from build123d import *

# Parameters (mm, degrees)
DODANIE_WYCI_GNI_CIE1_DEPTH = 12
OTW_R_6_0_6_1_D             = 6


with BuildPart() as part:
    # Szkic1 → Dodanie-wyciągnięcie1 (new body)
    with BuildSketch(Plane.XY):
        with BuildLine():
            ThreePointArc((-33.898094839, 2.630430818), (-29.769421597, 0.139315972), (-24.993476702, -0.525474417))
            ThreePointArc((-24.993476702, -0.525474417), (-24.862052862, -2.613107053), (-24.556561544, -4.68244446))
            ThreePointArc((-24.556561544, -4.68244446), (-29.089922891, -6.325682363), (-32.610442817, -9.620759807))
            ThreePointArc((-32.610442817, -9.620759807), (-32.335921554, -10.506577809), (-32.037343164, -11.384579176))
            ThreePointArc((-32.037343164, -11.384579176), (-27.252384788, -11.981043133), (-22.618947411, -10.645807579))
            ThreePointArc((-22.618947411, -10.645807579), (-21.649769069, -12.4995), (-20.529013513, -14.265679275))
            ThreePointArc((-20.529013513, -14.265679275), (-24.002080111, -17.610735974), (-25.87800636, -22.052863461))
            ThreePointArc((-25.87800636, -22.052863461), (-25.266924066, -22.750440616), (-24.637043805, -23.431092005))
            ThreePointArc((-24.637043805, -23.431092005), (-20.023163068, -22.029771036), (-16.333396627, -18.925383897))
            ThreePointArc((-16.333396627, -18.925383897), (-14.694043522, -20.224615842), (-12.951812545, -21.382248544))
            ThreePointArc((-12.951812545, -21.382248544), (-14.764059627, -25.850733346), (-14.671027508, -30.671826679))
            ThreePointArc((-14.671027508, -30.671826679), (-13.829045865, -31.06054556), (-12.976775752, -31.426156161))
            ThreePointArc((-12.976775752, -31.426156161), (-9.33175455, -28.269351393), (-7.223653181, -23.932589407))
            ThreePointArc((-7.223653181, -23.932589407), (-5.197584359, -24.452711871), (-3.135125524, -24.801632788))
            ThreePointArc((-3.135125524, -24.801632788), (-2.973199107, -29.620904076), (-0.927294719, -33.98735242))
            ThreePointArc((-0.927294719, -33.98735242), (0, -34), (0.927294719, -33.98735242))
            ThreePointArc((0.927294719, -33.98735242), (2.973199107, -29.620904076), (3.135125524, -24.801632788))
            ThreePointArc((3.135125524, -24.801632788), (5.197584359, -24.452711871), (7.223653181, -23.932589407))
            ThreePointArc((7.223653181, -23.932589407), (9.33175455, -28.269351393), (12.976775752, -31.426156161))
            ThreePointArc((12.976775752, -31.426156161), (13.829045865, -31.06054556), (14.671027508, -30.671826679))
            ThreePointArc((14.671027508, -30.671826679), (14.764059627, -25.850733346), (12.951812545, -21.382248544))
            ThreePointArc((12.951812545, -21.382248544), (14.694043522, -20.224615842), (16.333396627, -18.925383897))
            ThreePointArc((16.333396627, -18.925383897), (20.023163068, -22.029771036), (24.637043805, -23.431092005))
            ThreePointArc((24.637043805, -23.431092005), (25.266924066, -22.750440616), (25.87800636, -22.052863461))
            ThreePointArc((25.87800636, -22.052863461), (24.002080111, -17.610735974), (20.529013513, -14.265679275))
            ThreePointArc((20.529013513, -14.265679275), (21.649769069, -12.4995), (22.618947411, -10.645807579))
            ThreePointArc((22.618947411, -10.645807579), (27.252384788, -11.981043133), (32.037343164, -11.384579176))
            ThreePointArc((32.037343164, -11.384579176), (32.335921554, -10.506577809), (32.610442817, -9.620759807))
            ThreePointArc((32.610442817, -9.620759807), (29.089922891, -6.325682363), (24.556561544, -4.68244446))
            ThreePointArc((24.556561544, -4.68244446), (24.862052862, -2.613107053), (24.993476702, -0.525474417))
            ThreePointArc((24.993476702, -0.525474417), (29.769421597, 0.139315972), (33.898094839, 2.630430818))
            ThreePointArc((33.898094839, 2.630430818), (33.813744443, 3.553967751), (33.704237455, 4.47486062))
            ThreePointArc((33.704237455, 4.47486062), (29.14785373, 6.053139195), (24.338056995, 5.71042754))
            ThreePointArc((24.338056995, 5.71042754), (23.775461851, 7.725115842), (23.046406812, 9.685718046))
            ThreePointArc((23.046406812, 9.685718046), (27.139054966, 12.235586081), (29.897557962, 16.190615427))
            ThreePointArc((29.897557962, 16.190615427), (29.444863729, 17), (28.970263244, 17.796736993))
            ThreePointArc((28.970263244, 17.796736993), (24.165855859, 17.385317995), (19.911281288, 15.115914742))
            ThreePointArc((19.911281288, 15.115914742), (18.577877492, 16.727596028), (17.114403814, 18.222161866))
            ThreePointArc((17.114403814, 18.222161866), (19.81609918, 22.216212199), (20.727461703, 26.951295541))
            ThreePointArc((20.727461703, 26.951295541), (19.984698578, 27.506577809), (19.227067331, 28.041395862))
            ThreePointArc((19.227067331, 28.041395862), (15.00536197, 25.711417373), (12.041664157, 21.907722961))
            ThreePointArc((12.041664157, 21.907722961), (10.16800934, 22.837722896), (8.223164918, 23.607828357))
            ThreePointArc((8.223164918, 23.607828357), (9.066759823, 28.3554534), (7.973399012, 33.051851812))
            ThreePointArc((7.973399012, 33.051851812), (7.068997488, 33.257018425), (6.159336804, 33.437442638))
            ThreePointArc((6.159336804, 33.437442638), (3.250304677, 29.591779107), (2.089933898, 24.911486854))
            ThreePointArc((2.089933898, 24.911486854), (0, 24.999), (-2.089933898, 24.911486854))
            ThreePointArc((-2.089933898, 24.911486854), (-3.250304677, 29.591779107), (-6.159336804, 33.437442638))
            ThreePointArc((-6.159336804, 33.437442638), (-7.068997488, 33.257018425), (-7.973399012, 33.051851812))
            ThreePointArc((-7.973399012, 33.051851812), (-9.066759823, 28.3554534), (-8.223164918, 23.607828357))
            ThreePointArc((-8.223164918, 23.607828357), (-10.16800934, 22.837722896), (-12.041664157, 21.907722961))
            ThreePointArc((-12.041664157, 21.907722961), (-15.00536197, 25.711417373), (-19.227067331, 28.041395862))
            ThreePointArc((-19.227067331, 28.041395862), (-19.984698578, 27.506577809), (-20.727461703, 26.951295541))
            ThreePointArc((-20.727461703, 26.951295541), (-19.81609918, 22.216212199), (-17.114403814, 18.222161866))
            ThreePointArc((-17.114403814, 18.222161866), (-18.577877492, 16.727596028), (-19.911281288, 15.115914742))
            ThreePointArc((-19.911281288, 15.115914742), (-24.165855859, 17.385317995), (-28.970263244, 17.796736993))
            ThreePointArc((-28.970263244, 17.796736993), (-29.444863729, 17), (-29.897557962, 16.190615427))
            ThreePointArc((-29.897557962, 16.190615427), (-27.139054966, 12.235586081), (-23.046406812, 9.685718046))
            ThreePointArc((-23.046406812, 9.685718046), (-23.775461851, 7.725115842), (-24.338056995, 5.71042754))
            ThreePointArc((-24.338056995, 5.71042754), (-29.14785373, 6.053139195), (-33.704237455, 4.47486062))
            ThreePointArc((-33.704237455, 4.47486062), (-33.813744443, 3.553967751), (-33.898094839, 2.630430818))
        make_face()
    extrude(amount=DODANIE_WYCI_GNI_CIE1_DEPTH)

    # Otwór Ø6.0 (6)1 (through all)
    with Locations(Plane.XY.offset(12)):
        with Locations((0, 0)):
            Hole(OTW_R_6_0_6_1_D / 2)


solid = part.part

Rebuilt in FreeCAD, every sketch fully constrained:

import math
import FreeCAD as App
import Part
import Sketcher
from FreeCAD import Vector
Q = App.Units.Quantity

doc = App.newDocument("Part")
body = doc.addObject("PartDesign::Body", "Body")

sketch1 = body.newObject("Sketcher::SketchObject", "Sketch")
sketch1.AttachmentSupport = (doc.getObject("XY_Plane"), [""])
sketch1.MapMode = "FlatFace"
sketch1.addGeometry(Part.ArcOfCircle(Part.Circle(Vector(-25.8, 11.4, 0), Vector(0, 0, 1), 12), math.radians(-133), math.radians(-86)), False)
sketch1.addGeometry(Part.ArcOfCircle(Part.Circle(Vector(0, 0, 0), Vector(0, 0, 1), 25), math.radians(-178.8), math.radians(-169.2)), False)
sketch1.addGeometry(Part.ArcOfCircle(Part.Circle(Vector(-22.8, -16.6, 0), Vector(0, 0, 1), 12), math.radians(98), math.radians(145)), False)
sketch1.addGeometry(Part.ArcOfCircle(Part.Circle(Vector(0, 0, 0), Vector(0, 0, 1), 34), math.radians(-163.56), math.radians(-160.44)), False)
sketch1.addGeometry(Part.ArcOfCircle(Part.Circle(Vector(-28.2, 0, 0), Vector(0, 0, 1), 12), math.radians(-109), math.radians(-62)), False)
sketch1.addGeometry(Part.ArcOfCircle(Part.Circle(Vector(0, 0, 0), Vector(0, 0, 1), 25), math.radians(-154.8), math.radians(-145.2)), False)
sketch1.addGeometry(Part.ArcOfCircle(Part.Circle(Vector(-14.1, -24.4, 0), Vector(0, 0, 1), 12), math.radians(122), math.radians(169)), False)
sketch1.addGeometry(Part.ArcOfCircle(Part.Circle(Vector(0, 0, 0), Vector(0, 0, 1), 34), math.radians(-139.56), math.radians(-136.44)), False)
sketch1.addGeometry(Part.ArcOfCircle(Part.Circle(Vector(-25.7, -11.5, 0), Vector(0, 0, 1), 12), math.radians(-85), math.radians(-38)), False)
sketch1.addGeometry(Part.ArcOfCircle(Part.Circle(Vector(0, 0, 0), Vector(0, 0, 1), 25), math.radians(-130.8), math.radians(-121.2)), False)
sketch1.addGeometry(Part.ArcOfCircle(Part.Circle(Vector(-3, -28, 0), Vector(0, 0, 1), 12), math.radians(146), math.radians(193)), False)
sketch1.addGeometry(Part.ArcOfCircle(Part.Circle(Vector(0, 0, 0), Vector(0, 0, 1), 34), math.radians(-115.56), math.radians(-112.44)), False)
sketch1.addGeometry(Part.ArcOfCircle(Part.Circle(Vector(-18.9, -21, 0), Vector(0, 0, 1), 12), math.radians(-61), math.radians(-14)), False)
sketch1.addGeometry(Part.ArcOfCircle(Part.Circle(Vector(0, 0, 0), Vector(0, 0, 1), 25), math.radians(-106.8), math.radians(-97.2)), False)
sketch1.addGeometry(Part.ArcOfCircle(Part.Circle(Vector(8.7, -26.8, 0), Vector(0, 0, 1), 12), math.radians(170), math.radians(217)), False)
sketch1.addGeometry(Part.ArcOfCircle(Part.Circle(Vector(0, 0, 0), Vector(0, 0, 1), 34), math.radians(-91.56), math.radians(-88.44)), False)
sketch1.addGeometry(Part.ArcOfCircle(Part.Circle(Vector(-8.7, -26.8, 0), Vector(0, 0, 1), 12), math.radians(-37), math.radians(10)), False)
sketch1.addGeometry(Part.ArcOfCircle(Part.Circle(Vector(0, 0, 0), Vector(0, 0, 1), 25), math.radians(-82.8), math.radians(-73.2)), False)
sketch1.addGeometry(Part.ArcOfCircle(Part.Circle(Vector(18.9, -21, 0), Vector(0, 0, 1), 12), math.radians(-166), math.radians(-119)), False)
sketch1.addGeometry(Part.ArcOfCircle(Part.Circle(Vector(0, 0, 0), Vector(0, 0, 1), 34), math.radians(-67.56), math.radians(-64.44)), False)
sketch1.addGeometry(Part.ArcOfCircle(Part.Circle(Vector(3, -28, 0), Vector(0, 0, 1), 12), math.radians(-13), math.radians(34)), False)
sketch1.addGeometry(Part.ArcOfCircle(Part.Circle(Vector(0, 0, 0), Vector(0, 0, 1), 25), math.radians(-58.8), math.radians(-49.2)), False)
sketch1.addGeometry(Part.ArcOfCircle(Part.Circle(Vector(25.7, -11.5, 0), Vector(0, 0, 1), 12), math.radians(-142), math.radians(-95)), False)
sketch1.addGeometry(Part.ArcOfCircle(Part.Circle(Vector(0, 0, 0), Vector(0, 0, 1), 34), math.radians(-43.56), math.radians(-40.44)), False)
sketch1.addGeometry(Part.ArcOfCircle(Part.Circle(Vector(14.1, -24.4, 0), Vector(0, 0, 1), 12), math.radians(11), math.radians(58)), False)
sketch1.addGeometry(Part.ArcOfCircle(Part.Circle(Vector(0, 0, 0), Vector(0, 0, 1), 25), math.radians(-34.8), math.radians(-25.2)), False)
sketch1.addGeometry(Part.ArcOfCircle(Part.Circle(Vector(28.2, 0, 0), Vector(0, 0, 1), 12), math.radians(-118), math.radians(-71)), False)
sketch1.addGeometry(Part.ArcOfCircle(Part.Circle(Vector(0, 0, 0), Vector(0, 0, 1), 34), math.radians(-19.56), math.radians(-16.44)), False)
sketch1.addGeometry(Part.ArcOfCircle(Part.Circle(Vector(22.8, -16.6, 0), Vector(0, 0, 1), 12), math.radians(35), math.radians(82)), False)
sketch1.addGeometry(Part.ArcOfCircle(Part.Circle(Vector(0, 0, 0), Vector(0, 0, 1), 25), math.radians(-10.8), math.radians(-1.2)), False)
sketch1.addGeometry(Part.ArcOfCircle(Part.Circle(Vector(25.8, 11.4, 0), Vector(0, 0, 1), 12), math.radians(-94), math.radians(-47)), False)
sketch1.addGeometry(Part.ArcOfCircle(Part.Circle(Vector(0, 0, 0), Vector(0, 0, 1), 34), math.radians(4.44), math.radians(7.56)), False)
sketch1.addGeometry(Part.ArcOfCircle(Part.Circle(Vector(27.6, -5.8, 0), Vector(0, 0, 1), 12), math.radians(59), math.radians(106)), False)
sketch1.addGeometry(Part.ArcOfCircle(Part.Circle(Vector(0, 0, 0), Vector(0, 0, 1), 25), math.radians(13.2), math.radians(22.8)), False)
sketch1.addGeometry(Part.ArcOfCircle(Part.Circle(Vector(18.9, 20.9, 0), Vector(0, 0, 1), 12), math.radians(-70), math.radians(-23)), False)
sketch1.addGeometry(Part.ArcOfCircle(Part.Circle(Vector(0, 0, 0), Vector(0, 0, 1), 34), math.radians(28.44), math.radians(31.56)), False)
sketch1.addGeometry(Part.ArcOfCircle(Part.Circle(Vector(27.6, 5.9, 0), Vector(0, 0, 1), 12), math.radians(83), math.radians(130)), False)
sketch1.addGeometry(Part.ArcOfCircle(Part.Circle(Vector(0, 0, 0), Vector(0, 0, 1), 25), math.radians(37.2), math.radians(46.8)), False)
sketch1.addGeometry(Part.ArcOfCircle(Part.Circle(Vector(8.7, 26.8, 0), Vector(0, 0, 1), 12), math.radians(-46), math.radians(1)), False)
sketch1.addGeometry(Part.ArcOfCircle(Part.Circle(Vector(0, 0, 0), Vector(0, 0, 1), 34), math.radians(52.44), math.radians(55.56)), False)
sketch1.addGeometry(Part.ArcOfCircle(Part.Circle(Vector(22.8, 16.6, 0), Vector(0, 0, 1), 12), math.radians(107), math.radians(154)), False)
sketch1.addGeometry(Part.ArcOfCircle(Part.Circle(Vector(0, 0, 0), Vector(0, 0, 1), 25), math.radians(61.2), math.radians(70.8)), False)
sketch1.addGeometry(Part.ArcOfCircle(Part.Circle(Vector(-2.9, 28, 0), Vector(0, 0, 1), 12), math.radians(-22), math.radians(25)), False)
sketch1.addGeometry(Part.ArcOfCircle(Part.Circle(Vector(0, 0, 0), Vector(0, 0, 1), 34), math.radians(76.44), math.radians(79.56)), False)
sketch1.addGeometry(Part.ArcOfCircle(Part.Circle(Vector(14.1, 24.4, 0), Vector(0, 0, 1), 12), math.radians(131), math.radians(178)), False)
sketch1.addGeometry(Part.ArcOfCircle(Part.Circle(Vector(0, 0, 0), Vector(0, 0, 1), 25), math.radians(85.2), math.radians(94.8)), False)
sketch1.addGeometry(Part.ArcOfCircle(Part.Circle(Vector(-14.1, 24.4, 0), Vector(0, 0, 1), 12), math.radians(2), math.radians(49)), False)
sketch1.addGeometry(Part.ArcOfCircle(Part.Circle(Vector(0, 0, 0), Vector(0, 0, 1), 34), math.radians(100.44), math.radians(103.56)), False)
sketch1.addGeometry(Part.ArcOfCircle(Part.Circle(Vector(2.9, 28, 0), Vector(0, 0, 1), 12), math.radians(155), math.radians(202)), False)
sketch1.addGeometry(Part.ArcOfCircle(Part.Circle(Vector(0, 0, 0), Vector(0, 0, 1), 25), math.radians(109.2), math.radians(118.8)), False)
sketch1.addGeometry(Part.ArcOfCircle(Part.Circle(Vector(-22.8, 16.6, 0), Vector(0, 0, 1), 12), math.radians(26), math.radians(73)), False)
sketch1.addGeometry(Part.ArcOfCircle(Part.Circle(Vector(0, 0, 0), Vector(0, 0, 1), 34), math.radians(124.44), math.radians(127.56)), False)
sketch1.addGeometry(Part.ArcOfCircle(Part.Circle(Vector(-8.7, 26.8, 0), Vector(0, 0, 1), 12), math.radians(179), math.radians(226)), False)
sketch1.addGeometry(Part.ArcOfCircle(Part.Circle(Vector(0, 0, 0), Vector(0, 0, 1), 25), math.radians(133.2), math.radians(142.8)), False)
sketch1.addGeometry(Part.ArcOfCircle(Part.Circle(Vector(-27.6, 5.9, 0), Vector(0, 0, 1), 12), math.radians(50), math.radians(97)), False)
sketch1.addGeometry(Part.ArcOfCircle(Part.Circle(Vector(0, 0, 0), Vector(0, 0, 1), 34), math.radians(148.44), math.radians(151.56)), False)
sketch1.addGeometry(Part.ArcOfCircle(Part.Circle(Vector(-18.9, 20.9, 0), Vector(0, 0, 1), 12), math.radians(-157), math.radians(-110)), False)
sketch1.addGeometry(Part.ArcOfCircle(Part.Circle(Vector(0, 0, 0), Vector(0, 0, 1), 25), math.radians(157.2), math.radians(166.8)), False)
sketch1.addGeometry(Part.ArcOfCircle(Part.Circle(Vector(-27.6, -5.8, 0), Vector(0, 0, 1), 12), math.radians(74), math.radians(121)), False)
sketch1.addGeometry(Part.ArcOfCircle(Part.Circle(Vector(0, 0, 0), Vector(0, 0, 1), 34), math.radians(172.44), math.radians(175.56)), False)
sketch1.addConstraint(Sketcher.Constraint("Coincident", 0, 2, 1, 1))
sketch1.addConstraint(Sketcher.Constraint("Coincident", 1, 2, 2, 1))
sketch1.addConstraint(Sketcher.Constraint("Coincident", 2, 2, 3, 1))
sketch1.addConstraint(Sketcher.Constraint("Coincident", 3, 2, 4, 1))
sketch1.addConstraint(Sketcher.Constraint("Coincident", 4, 2, 5, 1))
sketch1.addConstraint(Sketcher.Constraint("Coincident", 5, 2, 6, 1))
sketch1.addConstraint(Sketcher.Constraint("Coincident", 6, 2, 7, 1))
sketch1.addConstraint(Sketcher.Constraint("Coincident", 7, 2, 8, 1))
sketch1.addConstraint(Sketcher.Constraint("Coincident", 8, 2, 9, 1))
sketch1.addConstraint(Sketcher.Constraint("Coincident", 9, 2, 10, 1))
sketch1.addConstraint(Sketcher.Constraint("Coincident", 10, 2, 11, 1))
sketch1.addConstraint(Sketcher.Constraint("Coincident", 11, 2, 12, 1))
sketch1.addConstraint(Sketcher.Constraint("Coincident", 12, 2, 13, 1))
sketch1.addConstraint(Sketcher.Constraint("Coincident", 13, 2, 14, 1))
sketch1.addConstraint(Sketcher.Constraint("Coincident", 14, 2, 15, 1))
sketch1.addConstraint(Sketcher.Constraint("Coincident", 15, 2, 16, 1))
sketch1.addConstraint(Sketcher.Constraint("Coincident", 16, 2, 17, 1))
sketch1.addConstraint(Sketcher.Constraint("Coincident", 17, 2, 18, 1))
sketch1.addConstraint(Sketcher.Constraint("Coincident", 18, 2, 19, 1))
sketch1.addConstraint(Sketcher.Constraint("Coincident", 19, 2, 20, 1))
sketch1.addConstraint(Sketcher.Constraint("Coincident", 20, 2, 21, 1))
sketch1.addConstraint(Sketcher.Constraint("Coincident", 21, 2, 22, 1))
sketch1.addConstraint(Sketcher.Constraint("Coincident", 22, 2, 23, 1))
sketch1.addConstraint(Sketcher.Constraint("Coincident", 23, 2, 24, 1))
sketch1.addConstraint(Sketcher.Constraint("Coincident", 24, 2, 25, 1))
sketch1.addConstraint(Sketcher.Constraint("Coincident", 25, 2, 26, 1))
sketch1.addConstraint(Sketcher.Constraint("Coincident", 26, 2, 27, 1))
sketch1.addConstraint(Sketcher.Constraint("Coincident", 27, 2, 28, 1))
sketch1.addConstraint(Sketcher.Constraint("Coincident", 28, 2, 29, 1))
sketch1.addConstraint(Sketcher.Constraint("Coincident", 29, 2, 30, 1))
sketch1.addConstraint(Sketcher.Constraint("Coincident", 30, 2, 31, 1))
sketch1.addConstraint(Sketcher.Constraint("Coincident", 31, 2, 32, 1))
sketch1.addConstraint(Sketcher.Constraint("Coincident", 32, 2, 33, 1))
sketch1.addConstraint(Sketcher.Constraint("Coincident", 33, 2, 34, 1))
sketch1.addConstraint(Sketcher.Constraint("Coincident", 34, 2, 35, 1))
sketch1.addConstraint(Sketcher.Constraint("Coincident", 35, 2, 36, 1))
sketch1.addConstraint(Sketcher.Constraint("Coincident", 36, 2, 37, 1))
sketch1.addConstraint(Sketcher.Constraint("Coincident", 37, 2, 38, 1))
sketch1.addConstraint(Sketcher.Constraint("Coincident", 38, 2, 39, 1))
sketch1.addConstraint(Sketcher.Constraint("Coincident", 39, 2, 40, 1))
sketch1.addConstraint(Sketcher.Constraint("Coincident", 40, 2, 41, 1))
sketch1.addConstraint(Sketcher.Constraint("Coincident", 41, 2, 42, 1))
sketch1.addConstraint(Sketcher.Constraint("Coincident", 42, 2, 43, 1))
sketch1.addConstraint(Sketcher.Constraint("Coincident", 43, 2, 44, 1))
sketch1.addConstraint(Sketcher.Constraint("Coincident", 44, 2, 45, 1))
sketch1.addConstraint(Sketcher.Constraint("Coincident", 45, 2, 46, 1))
sketch1.addConstraint(Sketcher.Constraint("Coincident", 46, 2, 47, 1))
sketch1.addConstraint(Sketcher.Constraint("Coincident", 47, 2, 48, 1))
sketch1.addConstraint(Sketcher.Constraint("Coincident", 48, 2, 49, 1))
sketch1.addConstraint(Sketcher.Constraint("Coincident", 49, 2, 50, 1))
sketch1.addConstraint(Sketcher.Constraint("Coincident", 50, 2, 51, 1))
sketch1.addConstraint(Sketcher.Constraint("Coincident", 51, 2, 52, 1))
sketch1.addConstraint(Sketcher.Constraint("Coincident", 52, 2, 53, 1))
sketch1.addConstraint(Sketcher.Constraint("Coincident", 53, 2, 54, 1))
sketch1.addConstraint(Sketcher.Constraint("Coincident", 54, 2, 55, 1))
sketch1.addConstraint(Sketcher.Constraint("Coincident", 55, 2, 56, 1))
sketch1.addConstraint(Sketcher.Constraint("Coincident", 56, 2, 57, 1))
sketch1.addConstraint(Sketcher.Constraint("Coincident", 57, 2, 58, 1))
sketch1.addConstraint(Sketcher.Constraint("Coincident", 58, 2, 59, 1))
sketch1.addConstraint(Sketcher.Constraint("Coincident", 59, 2, 0, 1))
sketch1.addConstraint(Sketcher.Constraint("Coincident", 1, 3, -1, 1))
sketch1.addConstraint(Sketcher.Constraint("Coincident", 3, 3, -1, 1))
sketch1.addConstraint(Sketcher.Constraint("Coincident", 5, 3, -1, 1))
sketch1.addConstraint(Sketcher.Constraint("Coincident", 7, 3, -1, 1))
sketch1.addConstraint(Sketcher.Constraint("Coincident", 9, 3, -1, 1))
sketch1.addConstraint(Sketcher.Constraint("Coincident", 11, 3, -1, 1))
sketch1.addConstraint(Sketcher.Constraint("Coincident", 13, 3, -1, 1))
sketch1.addConstraint(Sketcher.Constraint("Coincident", 15, 3, -1, 1))
sketch1.addConstraint(Sketcher.Constraint("Coincident", 17, 3, -1, 1))
sketch1.addConstraint(Sketcher.Constraint("Coincident", 19, 3, -1, 1))
sketch1.addConstraint(Sketcher.Constraint("Coincident", 21, 3, -1, 1))
sketch1.addConstraint(Sketcher.Constraint("Coincident", 23, 3, -1, 1))
sketch1.addConstraint(Sketcher.Constraint("Coincident", 25, 3, -1, 1))
sketch1.addConstraint(Sketcher.Constraint("Coincident", 27, 3, -1, 1))
sketch1.addConstraint(Sketcher.Constraint("Coincident", 29, 3, -1, 1))
sketch1.addConstraint(Sketcher.Constraint("Coincident", 31, 3, -1, 1))
sketch1.addConstraint(Sketcher.Constraint("Coincident", 33, 3, -1, 1))
sketch1.addConstraint(Sketcher.Constraint("Coincident", 35, 3, -1, 1))
sketch1.addConstraint(Sketcher.Constraint("Coincident", 37, 3, -1, 1))
sketch1.addConstraint(Sketcher.Constraint("Coincident", 39, 3, -1, 1))
sketch1.addConstraint(Sketcher.Constraint("Coincident", 41, 3, -1, 1))
sketch1.addConstraint(Sketcher.Constraint("Coincident", 43, 3, -1, 1))
sketch1.addConstraint(Sketcher.Constraint("Coincident", 45, 3, -1, 1))
sketch1.addConstraint(Sketcher.Constraint("Coincident", 47, 3, -1, 1))
sketch1.addConstraint(Sketcher.Constraint("Coincident", 49, 3, -1, 1))
sketch1.addConstraint(Sketcher.Constraint("Coincident", 51, 3, -1, 1))
sketch1.addConstraint(Sketcher.Constraint("Coincident", 53, 3, -1, 1))
sketch1.addConstraint(Sketcher.Constraint("Coincident", 55, 3, -1, 1))
sketch1.addConstraint(Sketcher.Constraint("Coincident", 57, 3, -1, 1))
sketch1.addConstraint(Sketcher.Constraint("Coincident", 59, 3, -1, 1))
sketch1.addConstraint(Sketcher.Constraint("Equal", 0, 2))
sketch1.addConstraint(Sketcher.Constraint("Equal", 2, 4))
sketch1.addConstraint(Sketcher.Constraint("Equal", 1, 5))
sketch1.addConstraint(Sketcher.Constraint("Equal", 4, 6))
sketch1.addConstraint(Sketcher.Constraint("Equal", 3, 7))
sketch1.addConstraint(Sketcher.Constraint("Equal", 6, 8))
sketch1.addConstraint(Sketcher.Constraint("Equal", 5, 9))
sketch1.addConstraint(Sketcher.Constraint("Equal", 8, 10))
sketch1.addConstraint(Sketcher.Constraint("Equal", 10, 12))
sketch1.addConstraint(Sketcher.Constraint("Equal", 9, 13))
sketch1.addConstraint(Sketcher.Constraint("Equal", 12, 14))
sketch1.addConstraint(Sketcher.Constraint("Equal", 7, 15))
sketch1.addConstraint(Sketcher.Constraint("Equal", 14, 16))
sketch1.addConstraint(Sketcher.Constraint("Equal", 13, 17))
sketch1.addConstraint(Sketcher.Constraint("Equal", 16, 18))
sketch1.addConstraint(Sketcher.Constraint("Equal", 11, 19))
sketch1.addConstraint(Sketcher.Constraint("Equal", 18, 20))
sketch1.addConstraint(Sketcher.Constraint("Equal", 17, 21))
sketch1.addConstraint(Sketcher.Constraint("Equal", 20, 22))
sketch1.addConstraint(Sketcher.Constraint("Equal", 15, 23))
sketch1.addConstraint(Sketcher.Constraint("Equal", 22, 24))
sketch1.addConstraint(Sketcher.Constraint("Equal", 21, 25))
sketch1.addConstraint(Sketcher.Constraint("Equal", 24, 26))
sketch1.addConstraint(Sketcher.Constraint("Equal", 23, 27))
sketch1.addConstraint(Sketcher.Constraint("Equal", 26, 28))
sketch1.addConstraint(Sketcher.Constraint("Equal", 25, 29))
sketch1.addConstraint(Sketcher.Constraint("Equal", 28, 30))
sketch1.addConstraint(Sketcher.Constraint("Equal", 27, 31))
sketch1.addConstraint(Sketcher.Constraint("Equal", 30, 32))
sketch1.addConstraint(Sketcher.Constraint("Equal", 29, 33))
sketch1.addConstraint(Sketcher.Constraint("Equal", 32, 34))
sketch1.addConstraint(Sketcher.Constraint("Equal", 31, 35))
sketch1.addConstraint(Sketcher.Constraint("Equal", 34, 36))
sketch1.addConstraint(Sketcher.Constraint("Equal", 33, 37))
sketch1.addConstraint(Sketcher.Constraint("Equal", 36, 38))
sketch1.addConstraint(Sketcher.Constraint("Equal", 35, 39))
sketch1.addConstraint(Sketcher.Constraint("Equal", 38, 40))
sketch1.addConstraint(Sketcher.Constraint("Equal", 37, 41))
sketch1.addConstraint(Sketcher.Constraint("Equal", 40, 42))
sketch1.addConstraint(Sketcher.Constraint("Equal", 39, 43))
sketch1.addConstraint(Sketcher.Constraint("Equal", 42, 44))
sketch1.addConstraint(Sketcher.Constraint("Equal", 41, 45))
sketch1.addConstraint(Sketcher.Constraint("Equal", 44, 46))
sketch1.addConstraint(Sketcher.Constraint("Equal", 43, 47))
sketch1.addConstraint(Sketcher.Constraint("Equal", 46, 48))
sketch1.addConstraint(Sketcher.Constraint("Equal", 45, 49))
sketch1.addConstraint(Sketcher.Constraint("Equal", 48, 50))
sketch1.addConstraint(Sketcher.Constraint("Equal", 47, 51))
sketch1.addConstraint(Sketcher.Constraint("Equal", 50, 52))
sketch1.addConstraint(Sketcher.Constraint("Equal", 49, 53))
sketch1.addConstraint(Sketcher.Constraint("Equal", 52, 54))
sketch1.addConstraint(Sketcher.Constraint("Equal", 51, 55))
sketch1.addConstraint(Sketcher.Constraint("Equal", 54, 56))
sketch1.addConstraint(Sketcher.Constraint("Equal", 53, 57))
sketch1.addConstraint(Sketcher.Constraint("Equal", 56, 58))
sketch1.addConstraint(Sketcher.Constraint("Equal", 55, 59))
sketch1.addConstraint(Sketcher.Constraint("Symmetric", 14, 3, 16, 3, -2))
sketch1.addConstraint(Sketcher.Constraint("Symmetric", 12, 3, 18, 3, -2))
sketch1.addConstraint(Sketcher.Constraint("Symmetric", 10, 3, 20, 3, -2))
sketch1.addConstraint(Sketcher.Constraint("Symmetric", 8, 3, 22, 3, -2))
sketch1.addConstraint(Sketcher.Constraint("Symmetric", 6, 3, 24, 3, -2))
sketch1.addConstraint(Sketcher.Constraint("Symmetric", 4, 3, 26, 3, -2))
sketch1.addConstraint(Sketcher.Constraint("Symmetric", 2, 3, 28, 3, -2))
sketch1.addConstraint(Sketcher.Constraint("Symmetric", 0, 3, 30, 3, -2))
sketch1.addConstraint(Sketcher.Constraint("Symmetric", 44, 3, 46, 3, -2))
sketch1.addConstraint(Sketcher.Constraint("Symmetric", 42, 3, 48, 3, -2))
sketch1.addConstraint(Sketcher.Constraint("Symmetric", 40, 3, 50, 3, -2))
sketch1.addConstraint(Sketcher.Constraint("Symmetric", 38, 3, 52, 3, -2))
sketch1.addConstraint(Sketcher.Constraint("Symmetric", 36, 3, 54, 3, -2))
sketch1.addConstraint(Sketcher.Constraint("Symmetric", 34, 3, 56, 3, -2))
sketch1.addConstraint(Sketcher.Constraint("Symmetric", 32, 3, 58, 3, -2))
sketch1.addConstraint(Sketcher.Constraint("Radius", 0, Q("12 mm")))
sketch1.addConstraint(Sketcher.Constraint("Radius", 3, Q("34 mm")))
sketch1.addConstraint(Sketcher.Constraint("Radius", 1, Q("24.999 mm")))
sketch1.addConstraint(Sketcher.Constraint("Radius", 11, Q("33.999998 mm")))
sketch1.addConstraint(Sketcher.Constraint("DistanceY", -1, 1, 42, 3, Q("28.038201 mm")))
sketch1.addConstraint(Sketcher.Constraint("DistanceX", -1, 1, 42, 2, Q("7.973399 mm")))
sketch1.addConstraint(Sketcher.Constraint("DistanceX", 0, 3, -1, 1, Q("25.760788 mm")))
sketch1.addConstraint(Sketcher.Constraint("DistanceY", -1, 1, 0, 3, Q("11.449968 mm")))
sketch1.addConstraint(Sketcher.Constraint("DistanceX", 2, 3, -1, 1, Q("22.817271 mm")))
sketch1.addConstraint(Sketcher.Constraint("DistanceY", 2, 3, -1, 1, Q("16.555728 mm")))
sketch1.addConstraint(Sketcher.Constraint("DistanceY", 4, 3, -1, 1, Q("0.01779 mm")))
sketch1.addConstraint(Sketcher.Constraint("DistanceY", 6, 3, -1, 1, Q("24.405031 mm")))
sketch1.addConstraint(Sketcher.Constraint("DistanceX", 10, 3, -1, 1, Q("2.964431 mm")))
sketch1.addConstraint(Sketcher.Constraint("DistanceY", 10, 3, -1, 1, Q("28.034481 mm")))
sketch1.addConstraint(Sketcher.Constraint("DistanceX", 12, 3, -1, 1, Q("18.850089 mm")))
sketch1.addConstraint(Sketcher.Constraint("DistanceY", 12, 3, -1, 1, Q("20.961731 mm")))
sketch1.addConstraint(Sketcher.Constraint("DistanceX", -1, 1, 14, 3, Q("8.694509 mm")))
sketch1.addConstraint(Sketcher.Constraint("DistanceY", 32, 3, -1, 1, Q("5.84379 mm")))
sketch1.addConstraint(Sketcher.Constraint("DistanceX", -1, 1, 34, 3, Q("18.87653 mm")))
sketch1.addConstraint(Sketcher.Constraint("DistanceX", -1, 1, 36, 3, Q("27.571038 mm")))
sketch1.addConstraint(Sketcher.Constraint("DistanceY", -1, 1, 38, 3, Q("26.805521 mm")))
sketch1.addConstraint(Sketcher.Constraint("DistanceX", -1, 1, 44, 3, Q("14.07998 mm")))
sketch1.addConstraint(Sketcher.Constraint("DistanceY", -1, 1, 44, 3, Q("24.422821 mm")))
sketch1.addConstraint(Sketcher.Constraint("DistanceY", 3, 2, -1, 1, Q("11.384579 mm")))
sketch1.addConstraint(Sketcher.Constraint("DistanceY", 5, 2, -1, 1, Q("14.265679 mm")))
sketch1.addConstraint(Sketcher.Constraint("DistanceY", -1, 1, 31, 2, Q("4.474861 mm")))
sketch1.addConstraint(Sketcher.Constraint("DistanceY", -1, 1, 33, 2, Q("9.685718 mm")))
sketch1.addConstraint(Sketcher.Constraint("DistanceX", -1, 1, 36, 2, Q("19.911281 mm")))
sketch1.addConstraint(Sketcher.Constraint("DistanceY", -1, 1, 37, 2, Q("18.222162 mm")))
sketch1.addConstraint(Sketcher.Constraint("DistanceX", 8, 3, -1, 1, Q("25.746317 mm")))
sketch1.addConstraint(Sketcher.Constraint("DistanceY", 8, 3, -1, 1, Q("11.482472 mm")))
sketch1.addConstraint(Sketcher.Constraint("DistanceY", 14, 3, -1, 1, Q("26.816516 mm")))
sketch1.addConstraint(Sketcher.Constraint("DistanceX", -1, 1, 40, 3, Q("22.796358 mm")))
sketch1.addConstraint(Sketcher.Constraint("DistanceY", -1, 1, 40, 3, Q("16.584513 mm")))
pad1 = body.newObject("PartDesign::Pad", "Pad")
pad1.Profile = sketch1
pad1.Length = 12

sketch2 = body.newObject("Sketcher::SketchObject", "Sketch001")
sketch2.AttachmentSupport = (doc.getObject("XY_Plane"), [""])
sketch2.MapMode = "FlatFace"
sketch2.AttachmentOffset = App.Placement(Vector(0, 0, 12), App.Rotation())
sketch2.addGeometry(Part.Circle(Vector(0, 0, 0), Vector(0, 0, 1), 3), False)
sketch2.addConstraint(Sketcher.Constraint("Coincident", 0, 3, -1, 1))
sketch2.addConstraint(Sketcher.Constraint("Diameter", 0, Q("6 mm")))
doc.recompute()
hole = body.newObject("PartDesign::Hole", "Hole")
hole.Profile = sketch2
hole.ThreadType = "None"
hole.Diameter = 6
hole.DepthType = "ThroughAll"

doc.recompute()
